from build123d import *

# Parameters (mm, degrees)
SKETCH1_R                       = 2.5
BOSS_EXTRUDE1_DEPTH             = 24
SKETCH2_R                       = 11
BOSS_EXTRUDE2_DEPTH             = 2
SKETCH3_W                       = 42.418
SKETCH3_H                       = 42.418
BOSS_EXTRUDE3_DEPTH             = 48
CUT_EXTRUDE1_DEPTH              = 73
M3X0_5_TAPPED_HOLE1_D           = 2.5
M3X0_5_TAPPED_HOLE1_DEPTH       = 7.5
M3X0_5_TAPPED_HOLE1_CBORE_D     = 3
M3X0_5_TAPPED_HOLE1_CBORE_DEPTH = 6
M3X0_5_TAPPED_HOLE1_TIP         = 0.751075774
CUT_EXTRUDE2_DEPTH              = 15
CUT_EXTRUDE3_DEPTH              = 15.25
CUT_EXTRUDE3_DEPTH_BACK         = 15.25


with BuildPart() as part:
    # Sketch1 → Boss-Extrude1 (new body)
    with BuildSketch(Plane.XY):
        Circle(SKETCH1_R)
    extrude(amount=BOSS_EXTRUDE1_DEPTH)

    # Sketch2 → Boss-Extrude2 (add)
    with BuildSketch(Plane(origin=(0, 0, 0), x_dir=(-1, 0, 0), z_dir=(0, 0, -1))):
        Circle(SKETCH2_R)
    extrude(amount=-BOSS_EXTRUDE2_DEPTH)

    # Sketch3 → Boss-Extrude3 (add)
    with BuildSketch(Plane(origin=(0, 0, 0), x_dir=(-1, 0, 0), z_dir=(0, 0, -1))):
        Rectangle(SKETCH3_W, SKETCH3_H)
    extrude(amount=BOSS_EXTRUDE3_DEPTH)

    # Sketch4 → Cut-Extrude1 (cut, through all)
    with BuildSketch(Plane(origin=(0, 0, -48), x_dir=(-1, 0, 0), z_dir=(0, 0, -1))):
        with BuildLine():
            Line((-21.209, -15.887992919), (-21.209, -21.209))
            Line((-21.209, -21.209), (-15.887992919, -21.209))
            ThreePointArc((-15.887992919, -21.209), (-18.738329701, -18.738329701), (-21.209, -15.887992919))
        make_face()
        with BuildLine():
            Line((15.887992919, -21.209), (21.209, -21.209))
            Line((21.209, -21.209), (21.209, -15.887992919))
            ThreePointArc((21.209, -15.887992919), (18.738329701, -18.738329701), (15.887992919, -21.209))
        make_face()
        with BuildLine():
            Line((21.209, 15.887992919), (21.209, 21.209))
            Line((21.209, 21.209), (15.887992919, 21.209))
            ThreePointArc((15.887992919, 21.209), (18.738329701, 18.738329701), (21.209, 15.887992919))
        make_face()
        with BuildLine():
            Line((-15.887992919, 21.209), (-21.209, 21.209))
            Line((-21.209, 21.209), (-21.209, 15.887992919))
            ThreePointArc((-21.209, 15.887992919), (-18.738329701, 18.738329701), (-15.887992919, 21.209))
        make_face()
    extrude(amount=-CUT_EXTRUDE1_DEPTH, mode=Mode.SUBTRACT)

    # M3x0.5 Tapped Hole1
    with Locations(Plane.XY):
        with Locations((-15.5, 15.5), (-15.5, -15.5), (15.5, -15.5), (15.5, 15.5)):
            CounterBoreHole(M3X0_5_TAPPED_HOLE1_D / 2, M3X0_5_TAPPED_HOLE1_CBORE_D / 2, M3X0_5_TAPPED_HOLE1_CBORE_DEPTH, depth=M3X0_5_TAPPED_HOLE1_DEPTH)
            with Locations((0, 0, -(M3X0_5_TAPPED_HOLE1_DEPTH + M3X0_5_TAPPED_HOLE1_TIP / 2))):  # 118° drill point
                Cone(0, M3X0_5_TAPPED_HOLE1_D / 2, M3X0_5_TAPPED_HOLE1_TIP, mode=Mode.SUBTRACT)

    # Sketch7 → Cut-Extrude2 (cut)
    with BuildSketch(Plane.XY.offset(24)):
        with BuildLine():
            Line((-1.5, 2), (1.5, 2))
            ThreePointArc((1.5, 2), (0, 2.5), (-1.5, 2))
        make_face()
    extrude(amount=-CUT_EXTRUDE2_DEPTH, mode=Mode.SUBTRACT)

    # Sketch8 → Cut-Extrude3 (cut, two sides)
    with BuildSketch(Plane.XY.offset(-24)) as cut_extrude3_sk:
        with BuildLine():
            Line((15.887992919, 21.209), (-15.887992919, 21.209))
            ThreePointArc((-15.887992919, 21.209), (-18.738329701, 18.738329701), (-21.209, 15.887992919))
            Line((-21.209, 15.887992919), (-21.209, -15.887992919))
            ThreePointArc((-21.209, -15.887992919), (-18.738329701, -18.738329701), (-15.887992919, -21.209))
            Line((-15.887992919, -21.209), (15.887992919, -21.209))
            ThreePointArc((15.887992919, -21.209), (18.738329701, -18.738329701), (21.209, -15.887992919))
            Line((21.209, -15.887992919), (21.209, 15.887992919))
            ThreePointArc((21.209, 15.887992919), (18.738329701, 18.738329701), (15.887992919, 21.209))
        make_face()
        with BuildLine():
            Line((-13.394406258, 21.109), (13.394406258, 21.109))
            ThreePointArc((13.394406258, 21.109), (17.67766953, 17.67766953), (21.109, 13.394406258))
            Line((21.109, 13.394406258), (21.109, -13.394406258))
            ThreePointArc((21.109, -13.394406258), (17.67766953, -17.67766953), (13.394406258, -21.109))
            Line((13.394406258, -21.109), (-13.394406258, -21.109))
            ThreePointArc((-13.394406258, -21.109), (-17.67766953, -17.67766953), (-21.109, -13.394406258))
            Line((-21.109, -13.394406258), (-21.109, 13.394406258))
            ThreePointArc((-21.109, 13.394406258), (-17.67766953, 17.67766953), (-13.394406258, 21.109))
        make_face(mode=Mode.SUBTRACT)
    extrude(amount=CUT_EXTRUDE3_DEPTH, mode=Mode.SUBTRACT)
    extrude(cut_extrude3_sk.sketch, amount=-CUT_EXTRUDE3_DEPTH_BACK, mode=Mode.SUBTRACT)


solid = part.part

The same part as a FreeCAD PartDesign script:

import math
import FreeCAD as App
import Part
import Sketcher
Q = App.Units.Quantity

doc = App.newDocument("Part")
params = doc.addObject("Spreadsheet::Sheet", "Params")
for row, (alias, value) in enumerate([
    ("sketch1_diameter", "5 mm"),
    ("pad1_length", "24 mm"),
    ("sketch2_diameter", "22 mm"),
    ("pad2_length", "2 mm"),
    ("pad3_length", "48 mm"),
    ("sketch4_radius", "26.5 mm"),
    ("sketch5_diameter", "2.5 mm"),
    ("hole_diameter", "2.5 mm"),
    ("hole_depth", "7.5 mm"),
    ("hole_cbore_diameter", "3 mm"),
    ("hole_cbore_depth", "6 mm"),
    ("sketch6_radius", "2.5 mm"),
    ("sketch6_width", "3 mm"),
    ("pocket2_length", "15 mm"),
    ("sketch7_radius", "25 mm"),
    ("sketch7_radius2", "26.5 mm"),
    ("pocket3_length", "15.25 mm"),
    ("pocket3_length2", "15.25 mm"),
], start=1):
    params.set(f"A{row}", alias)
    params.set(f"B{row}", "=" + value)
    params.setAlias(f"B{row}", alias)

body = doc.addObject("PartDesign::Body", "Body")

sketch1 = doc.addObject("Sketcher::SketchObject", "Sketch")
body.addObject(sketch1)
sketch1.AttachmentSupport = (doc.XY_Plane, [""])
sketch1.MapMode = "FlatFace"
sketch1.addGeometry(Part.Circle(App.Vector(0, 0, 0), App.Vector(0, 0, 1), 2.5), False)
sketch1.addConstraint([
    Sketcher.Constraint("Coincident", 0, 3, -1, 1),
    Sketcher.Constraint("Diameter", 0, Q("5 mm")),
])
sketch1.setExpression("Constraints[1]", "Params.sketch1_diameter")
pad1 = doc.addObject("PartDesign::Pad", "Pad")
body.addObject(pad1)
pad1.Profile = sketch1
pad1.setExpression("Length", "Params.pad1_length")

sketch2 = doc.addObject("Sketcher::SketchObject", "Sketch001")
body.addObject(sketch2)
sketch2.AttachmentSupport = (doc.XY_Plane, [""])
sketch2.MapMode = "FlatFace"
sketch2.addGeometry(Part.Circle(App.Vector(0, 0, 0), App.Vector(0, 0, 1), 11), False)
sketch2.addConstraint([
    Sketcher.Constraint("Coincident", 0, 3, -1, 1),
    Sketcher.Constraint("Diameter", 0, Q("22 mm")),
])
sketch2.setExpression("Constraints[1]", "Params.sketch2_diameter")
pad2 = doc.addObject("PartDesign::Pad", "Pad001")
body.addObject(pad2)
pad2.Profile = sketch2
pad2.setExpression("Length", "Params.pad2_length")

sketch3 = doc.addObject("Sketcher::SketchObject", "Sketch002")
body.addObject(sketch3)
sketch3.AttachmentSupport = (doc.XY_Plane, [""])
sketch3.MapMode = "FlatFace"
sketch3.addGeometry([
    Part.LineSegment(App.Vector(21, 21, 0), App.Vector(21, -21, 0)),
    Part.LineSegment(App.Vector(21, -21, 0), App.Vector(-21, -21, 0)),
    Part.LineSegment(App.Vector(-21, -21, 0), App.Vector(-21, 21, 0)),
    Part.LineSegment(App.Vector(-21, 21, 0), App.Vector(21, 21, 0)),
], False)
sketch3.addConstraint([
    Sketcher.Constraint("Coincident", 0, 2, 1, 1),
    Sketcher.Constraint("Coincident", 1, 2, 2, 1),
    Sketcher.Constraint("Coincident", 2, 2, 3, 1),
    Sketcher.Constraint("Coincident", 3, 2, 0, 1),
    Sketcher.Constraint("Vertical", 0),
    Sketcher.Constraint("Horizontal", 1),
    Sketcher.Constraint("Vertical", 2),
    Sketcher.Constraint("Horizontal", 3),
    Sketcher.Constraint("Symmetric", 0, 2, 2, 2, -1, 1),
    Sketcher.Constraint("Equal", 3, 0),
    Sketcher.Constraint("DistanceX", 1, 2, 1, 1, Q("42.418 mm")),
])
pad3 = doc.addObject("PartDesign::Pad", "Pad002")
body.addObject(pad3)
pad3.Profile = sketch3
pad3.setExpression("Length", "Params.pad3_length")
pad3.Reversed = True

sketch4 = doc.addObject("Sketcher::SketchObject", "Sketch003")
body.addObject(sketch4)
sketch4.AttachmentSupport = (doc.XY_Plane, [""])
sketch4.MapMode = "FlatFace"
sketch4.AttachmentOffset = App.Placement(App.Vector(0, 0, -48), App.Rotation())
sketch4.addGeometry([
    Part.LineSegment(App.Vector(21, -16, 0), App.Vector(21, -21, 0)),
    Part.LineSegment(App.Vector(21, -21, 0), App.Vector(16, -21, 0)),
    Part.ArcOfCircle(Part.Circle(App.Vector(0, 0, 0), App.Vector(0, 0, 1), 27), math.radians(-53.16), math.radians(-36.84)),
    Part.LineSegment(App.Vector(-16, -21, 0), App.Vector(-21, -21, 0)),
    Part.LineSegment(App.Vector(-21, -21, 0), App.Vector(-21, -16, 0)),
    Part.ArcOfCircle(Part.Circle(App.Vector(0, 0, 0), App.Vector(0, 0, 1), 27), math.radians(-143.16), math.radians(-126.84)),
    Part.LineSegment(App.Vector(-21, 16, 0), App.Vector(-21, 21, 0)),
    Part.LineSegment(App.Vector(-21, 21, 0), App.Vector(-16, 21, 0)),
    Part.ArcOfCircle(Part.Circle(App.Vector(0, 0, 0), App.Vector(0, 0, 1), 27), math.radians(126.84), math.radians(143.16)),
    Part.LineSegment(App.Vector(16, 21, 0), App.Vector(21, 21, 0)),
    Part.LineSegment(App.Vector(21, 21, 0), App.Vector(21, 16, 0)),
    Part.ArcOfCircle(Part.Circle(App.Vector(0, 0, 0), App.Vector(0, 0, 1), 27), math.radians(36.84), math.radians(53.16)),
], False)
sketch4.addConstraint([
    Sketcher.Constraint("Coincident", 0, 2, 1, 1),
    Sketcher.Constraint("Coincident", 1, 2, 2, 1),
    Sketcher.Constraint("Coincident", 2, 2, 0, 1),
    Sketcher.Constraint("Coincident", 3, 2, 4, 1),
    Sketcher.Constraint("Coincident", 4, 2, 5, 1),
    Sketcher.Constraint("Coincident", 5, 2, 3, 1),
    Sketcher.Constraint("Coincident", 6, 2, 7, 1),
    Sketcher.Constraint("Coincident", 7, 2, 8, 1),
    Sketcher.Constraint("Coincident", 8, 2, 6, 1),
    Sketcher.Constraint("Coincident", 9, 2, 10, 1),
    Sketcher.Constraint("Coincident", 10, 2, 11, 1),
    Sketcher.Constraint("Coincident", 11, 2, 9, 1),
    Sketcher.Constraint("Vertical", 0),
    Sketcher.Constraint("Horizontal", 1),
    Sketcher.Constraint("Horizontal", 3),
    Sketcher.Constraint("Vertical", 4),
    Sketcher.Constraint("Vertical", 6),
    Sketcher.Constraint("Horizontal", 7),
    Sketcher.Constraint("Horizontal", 9),
    Sketcher.Constraint("Vertical", 10),
    Sketcher.Constraint("Coincident", 2, 3, -1, 1),
    Sketcher.Constraint("Coincident", 5, 3, -1, 1),
    Sketcher.Constraint("Coincident", 8, 3, -1, 1),
    Sketcher.Constraint("Coincident", 11, 3, -1, 1),
    Sketcher.Constraint("Equal", 2, 5),
    Sketcher.Constraint("Equal", 5, 8),
    Sketcher.Constraint("Equal", 8, 11),
    Sketcher.Constraint("Symmetric", 0, 2, 6, 2, -1, 1),
    Sketcher.Constraint("Symmetric", 3, 2, 9, 2, -1, 1),
    Sketcher.Constraint("Symmetric", 0, 2, 3, 2, -2),
    Sketcher.Constraint("Equal", 9, 0),
    Sketcher.Constraint("Radius", 2, Q("26.5 mm")),
    Sketcher.Constraint("DistanceX", -1, 1, 0, 2, Q("21.209 mm")),
])
sketch4.setExpression("Constraints[31]", "Params.sketch4_radius")
pocket1 = doc.addObject("PartDesign::Pocket", "Pocket")
body.addObject(pocket1)
pocket1.Profile = sketch4
pocket1.Type = "ThroughAll"
pocket1.Reversed = True

sketch5 = doc.addObject("Sketcher::SketchObject", "Sketch004")
body.addObject(sketch5)
sketch5.AttachmentSupport = (doc.XY_Plane, [""])
sketch5.MapMode = "FlatFace"
sketch5.addGeometry([
    Part.Circle(App.Vector(-15.5, 15.5, 0), App.Vector(0, 0, 1), 1.2),
    Part.Circle(App.Vector(-15.5, -15.5, 0), App.Vector(0, 0, 1), 1.2),
    Part.Circle(App.Vector(15.5, -15.5, 0), App.Vector(0, 0, 1), 1.2),
    Part.Circle(App.Vector(15.5, 15.5, 0), App.Vector(0, 0, 1), 1.2),
], False)
sketch5.addConstraint([
    Sketcher.Constraint("Equal", 0, 1),
    Sketcher.Constraint("Equal", 1, 2),
    Sketcher.Constraint("Equal", 2, 3),
    Sketcher.Constraint("Symmetric", 0, 3, 2, 3, -1, 1),
    Sketcher.Constraint("Symmetric", 1, 3, 3, 3, -1, 1),
    Sketcher.Constraint("Symmetric", 1, 3, 2, 3, -2),
    Sketcher.Constraint("Diameter", 0, Q("2.5 mm")),
    Sketcher.Constraint("DistanceY", 1, 3, 0, 3, Q("31 mm")),
    Sketcher.Constraint("DistanceX", 1, 3, 2, 3, Q("31 mm")),
])
sketch5.setExpression("Constraints[6]", "Params.sketch5_diameter")
doc.recompute()
hole = doc.addObject("PartDesign::Hole", "Hole")
body.addObject(hole)
hole.Profile = sketch5
hole.ThreadType = "None"
hole.setExpression("Diameter", "Params.hole_diameter")
hole.DepthType = "Dimension"
hole.setExpression("Depth", "Params.hole_depth")
hole.DrillPoint = "Angled"
hole.DrillPointAngle = 118
hole.HoleCutType = "Counterbore"
hole.setExpression("HoleCutDiameter", "Params.hole_cbore_diameter")
hole.setExpression("HoleCutDepth", "Params.hole_cbore_depth")

sketch6 = doc.addObject("Sketcher::SketchObject", "Sketch005")
body.addObject(sketch6)
sketch6.AttachmentSupport = (doc.XY_Plane, [""])
sketch6.MapMode = "FlatFace"
sketch6.AttachmentOffset = App.Placement(App.Vector(0, 0, 24), App.Rotation())
sketch6.addGeometry([
    Part.LineSegment(App.Vector(-1.5, 2, 0), App.Vector(1.5, 2, 0)),
    Part.ArcOfCircle(Part.Circle(App.Vector(0, 0, 0), App.Vector(0, 0, 1), 2.5), math.radians(53), math.radians(127)),
], False)
sketch6.addConstraint([
    Sketcher.Constraint("Coincident", 0, 1, 1, 2),
    Sketcher.Constraint("Coincident", 1, 1, 0, 2),
    Sketcher.Constraint("Horizontal", 0),
    Sketcher.Constraint("Coincident", 1, 3, -1, 1),
    Sketcher.Constraint("Radius", 1, Q("2.5 mm")),
    Sketcher.Constraint("DistanceX", 0, 1, 0, 2, Q("3 mm")),
])
sketch6.setExpression("Constraints[4]", "Params.sketch6_radius")
sketch6.setExpression("Constraints[5]", "Params.sketch6_width")
pocket2 = doc.addObject("PartDesign::Pocket", "Pocket001")
body.addObject(pocket2)
pocket2.Profile = sketch6
pocket2.setExpression("Length", "Params.pocket2_length")

sketch7 = doc.addObject("Sketcher::SketchObject", "Sketch006")
body.addObject(sketch7)
sketch7.AttachmentSupport = (doc.XY_Plane, [""])
sketch7.MapMode = "FlatFace"
sketch7.AttachmentOffset = App.Placement(App.Vector(0, 0, -24), App.Rotation())
sketch7.addGeometry([
    Part.LineSegment(App.Vector(16, 21, 0), App.Vector(-16, 21, 0)),
    Part.ArcOfCircle(Part.Circle(App.Vector(0, 0, 0), App.Vector(0, 0, 1), 27), math.radians(126.84), math.radians(143.16)),
    Part.LineSegment(App.Vector(-21, 16, 0), App.Vector(-21, -16, 0)),
    Part.ArcOfCircle(Part.Circle(App.Vector(0, 0, 0), App.Vector(0, 0, 1), 27), math.radians(-143.16), math.radians(-126.84)),
    Part.LineSegment(App.Vector(-16, -21, 0), App.Vector(16, -21, 0)),
    Part.ArcOfCircle(Part.Circle(App.Vector(0, 0, 0), App.Vector(0, 0, 1), 27), math.radians(-53.16), math.radians(-36.84)),
    Part.LineSegment(App.Vector(21, -16, 0), App.Vector(21, 16, 0)),
    Part.ArcOfCircle(Part.Circle(App.Vector(0, 0, 0), App.Vector(0, 0, 1), 27), math.radians(36.84), math.radians(53.16)),
    Part.ArcOfCircle(Part.Circle(App.Vector(0, 0, 0), App.Vector(0, 0, 1), 25), math.radians(122), math.radians(148)),
    Part.LineSegment(App.Vector(-13, 21, 0), App.Vector(13, 21, 0)),
    Part.ArcOfCircle(Part.Circle(App.Vector(0, 0, 0), App.Vector(0, 0, 1), 25), math.radians(32), math.radians(58)),
    Part.LineSegment(App.Vector(21, 13, 0), App.Vector(21, -13, 0)),
    Part.ArcOfCircle(Part.Circle(App.Vector(0, 0, 0), App.Vector(0, 0, 1), 25), math.radians(-58), math.radians(-32)),
    Part.LineSegment(App.Vector(13, -21, 0), App.Vector(-13, -21, 0)),
    Part.ArcOfCircle(Part.Circle(App.Vector(0, 0, 0), App.Vector(0, 0, 1), 25), math.radians(-148), math.radians(-122)),
    Part.LineSegment(App.Vector(-21, -13, 0), App.Vector(-21, 13, 0)),
], False)
sketch7.addConstraint([
    Sketcher.Constraint("Coincident", 0, 2, 1, 1),
    Sketcher.Constraint("Coincident", 1, 2, 2, 1),
    Sketcher.Constraint("Coincident", 2, 2, 3, 1),
    Sketcher.Constraint("Coincident", 3, 2, 4, 1),
    Sketcher.Constraint("Coincident", 4, 2, 5, 1),
    Sketcher.Constraint("Coincident", 5, 2, 6, 1),
    Sketcher.Constraint("Coincident", 6, 2, 7, 1),
    Sketcher.Constraint("Coincident", 7, 2, 0, 1),
    Sketcher.Constraint("Coincident", 8, 1, 9, 1),
    Sketcher.Constraint("Coincident", 9, 2, 10, 2),
    Sketcher.Constraint("Coincident", 10, 1, 11, 1),
    Sketcher.Constraint("Coincident", 11, 2, 12, 2),
    Sketcher.Constraint("Coincident", 12, 1, 13, 1),
    Sketcher.Constraint("Coincident", 13, 2, 14, 2),
    Sketcher.Constraint("Coincident", 14, 1, 15, 1),
    Sketcher.Constraint("Coincident", 15, 2, 8, 2),
    Sketcher.Constraint("Horizontal", 0),
    Sketcher.Constraint("Vertical", 2),
    Sketcher.Constraint("Horizontal", 4),
    Sketcher.Constraint("Vertical", 6),
    Sketcher.Constraint("Horizontal", 9),
    Sketcher.Constraint("Vertical", 11),
    Sketcher.Constraint("Horizontal", 13),
    Sketcher.Constraint("Vertical", 15),
    Sketcher.Constraint("Coincident", 1, 3, -1, 1),
    Sketcher.Constraint("Coincident", 3, 3, -1, 1),
    Sketcher.Constraint("Coincident", 5, 3, -1, 1),
    Sketcher.Constraint("Coincident", 7, 3, -1, 1),
    Sketcher.Constraint("Coincident", 8, 3, -1, 1),
    Sketcher.Constraint("Coincident", 10, 3, -1, 1),
    Sketcher.Constraint("Coincident", 12, 3, -1, 1),
    Sketcher.Constraint("Coincident", 14, 3, -1, 1),
    Sketcher.Constraint("Equal", 1, 3),
    Sketcher.Constraint("Equal", 3, 5),
    Sketcher.Constraint("Equal", 5, 7),
    Sketcher.Constraint("Equal", 8, 10),
    Sketcher.Constraint("Equal", 10, 12),
    Sketcher.Constraint("Equal", 12, 14),
    Sketcher.Constraint("Horizontal", 2, 2, 5, 2),
    Sketcher.Constraint("Horizontal", 11, 2, 14, 1),
    Sketcher.Constraint("Vertical", 0, 2, 3, 2),
    Sketcher.Constraint("Vertical", 9, 2, 12, 1),
    Sketcher.Constraint("Equal", 4, 2),
    Sketcher.Constraint("Equal", 13, 11),
    Sketcher.Constraint("Radius", 8, Q("25 mm")),
    Sketcher.Constraint("Radius", 1, Q("26.5 mm")),
    Sketcher.Constraint("DistanceY", 8, 1, 0, 2, Q("0.1 mm")),
    Sketcher.Constraint("DistanceY", -1, 1, 0, 2, Q("21.209 mm")),
])
sketch7.setExpression("Constraints[44]", "Params.sketch7_radius")
sketch7.setExpression("Constraints[45]", "Params.sketch7_radius2")
pocket3 = doc.addObject("PartDesign::Pocket", "Pocket002")
body.addObject(pocket3)
pocket3.Profile = sketch7
pocket3.Type = "TwoLengths"
pocket3.setExpression("Length", "Params.pocket3_length")
pocket3.setExpression("Length2", "Params.pocket3_length2")
pocket3.Reversed = True

doc.recompute()
